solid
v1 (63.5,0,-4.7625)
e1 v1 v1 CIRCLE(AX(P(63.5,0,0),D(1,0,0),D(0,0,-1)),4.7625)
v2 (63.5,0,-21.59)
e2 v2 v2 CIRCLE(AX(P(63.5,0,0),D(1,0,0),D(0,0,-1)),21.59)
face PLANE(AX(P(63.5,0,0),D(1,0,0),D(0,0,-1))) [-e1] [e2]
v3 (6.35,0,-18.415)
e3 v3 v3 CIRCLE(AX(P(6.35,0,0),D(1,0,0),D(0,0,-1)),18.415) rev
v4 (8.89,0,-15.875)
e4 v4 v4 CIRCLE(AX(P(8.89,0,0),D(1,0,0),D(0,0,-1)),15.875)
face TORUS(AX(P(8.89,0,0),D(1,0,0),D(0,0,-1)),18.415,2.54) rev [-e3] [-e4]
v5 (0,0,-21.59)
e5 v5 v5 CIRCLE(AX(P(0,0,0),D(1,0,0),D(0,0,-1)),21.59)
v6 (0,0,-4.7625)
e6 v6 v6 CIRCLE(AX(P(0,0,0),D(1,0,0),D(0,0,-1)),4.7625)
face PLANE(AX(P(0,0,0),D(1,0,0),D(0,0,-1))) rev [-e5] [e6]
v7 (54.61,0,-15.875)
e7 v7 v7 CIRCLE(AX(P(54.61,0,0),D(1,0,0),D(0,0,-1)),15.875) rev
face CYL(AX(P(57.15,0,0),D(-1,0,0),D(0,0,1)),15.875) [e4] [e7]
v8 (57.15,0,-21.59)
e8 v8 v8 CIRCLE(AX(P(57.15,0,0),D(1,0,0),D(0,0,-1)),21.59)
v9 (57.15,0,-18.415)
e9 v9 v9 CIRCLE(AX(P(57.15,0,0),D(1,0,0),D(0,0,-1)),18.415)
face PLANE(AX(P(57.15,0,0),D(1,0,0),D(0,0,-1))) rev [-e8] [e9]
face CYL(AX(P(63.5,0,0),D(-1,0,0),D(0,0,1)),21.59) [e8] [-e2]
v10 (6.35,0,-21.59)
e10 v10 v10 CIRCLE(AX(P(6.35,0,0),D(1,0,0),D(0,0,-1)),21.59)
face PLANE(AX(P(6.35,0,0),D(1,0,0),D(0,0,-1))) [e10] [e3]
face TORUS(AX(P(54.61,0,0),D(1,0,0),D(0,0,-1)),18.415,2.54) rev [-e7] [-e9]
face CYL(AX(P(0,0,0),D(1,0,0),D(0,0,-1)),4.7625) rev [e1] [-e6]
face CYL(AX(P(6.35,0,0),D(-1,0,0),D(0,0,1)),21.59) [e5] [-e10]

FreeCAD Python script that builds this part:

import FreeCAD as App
import Part
import Sketcher

V = App.Vector
Q = App.Units.Quantity


def edges_at(feature, points):
    """Names of the edges that pass closest to the given points."""
    edges = feature.Shape.Edges
    near = lambda p: min(range(len(edges)), key=lambda i: edges[i].distToShape(Part.Vertex(*p))[0])
    return sorted({f"Edge{near(p) + 1}" for p in points})

doc = App.newDocument("Part")
body = doc.addObject("PartDesign::Body", "Body")

# Sketch on YZ plane
sketch1 = body.newObject("Sketcher::SketchObject", "Sketch")
sketch1.AttachmentSupport = (doc.getObject("YZ_Plane"), [""])
sketch1.MapMode = "FlatFace"
sketch1.addGeometry(Part.Circle(V(0, 0, 0), V(0, 0, 1), 22), False)
sketch1.addConstraint([
    Sketcher.Constraint("Coincident", 0, 3, -1, 1),
    Sketcher.Constraint("Diameter", 0, Q("1.7 in")),
])
pad1 = body.newObject("PartDesign::Pad", "Pad")
pad1.Profile = sketch1
pad1.Length = Q("0.25 in")

# Sketch on YZ plane
sketch2 = body.newObject("Sketcher::SketchObject", "Sketch001")
sketch2.AttachmentSupport = (doc.getObject("YZ_Plane"), [""])
sketch2.MapMode = "FlatFace"
sketch2.AttachmentOffset = App.Placement(V(0, 0, 0.25 * 25.4), App.Rotation())
sketch2.addGeometry(Part.Circle(V(0, 0, 0), V(0, 0, 1), 16), False)
sketch2.addConstraint([
    Sketcher.Constraint("Coincident", 0, 3, -1, 1),
    Sketcher.Constraint("Diameter", 0, Q("1.25 in")),
])
pad2 = body.newObject("PartDesign::Pad", "Pad001")
pad2.Profile = sketch2
pad2.Length = Q("2 in")
doc.recompute()

fillet = body.newObject("PartDesign::Fillet", "Fillet")
fillet.Base = (pad2, edges_at(pad2, [(6.35, 0, 15.875)]))
fillet.Radius = Q("0.1 in")

# Sketch on YZ plane
sketch3 = body.newObject("Sketcher::SketchObject", "Sketch002")
sketch3.AttachmentSupport = (doc.getObject("YZ_Plane"), [""])
sketch3.MapMode = "FlatFace"
sketch3.AttachmentOffset = App.Placement(V(0, 0, 2.25 * 25.4), App.Rotation())
sketch3.addGeometry(Part.Circle(V(0, 0, 0), V(0, 0, 1), 22), False)
sketch3.addConstraint([
    Sketcher.Constraint("Coincident", 0, 3, -1, 1),
    Sketcher.Constraint("Diameter", 0, Q("1.7 in")),
])
pad3 = body.newObject("PartDesign::Pad", "Pad002")
pad3.Profile = sketch3
pad3.Length = Q("0.25 in")
doc.recompute()

fillet2 = body.newObject("PartDesign::Fillet", "Fillet001")
fillet2.Base = (pad3, edges_at(pad3, [(57.15, 0, 15.875)]))
fillet2.Radius = Q("0.1 in")

# Sketch on YZ plane
sketch4 = body.newObject("Sketcher::SketchObject", "Sketch003")
sketch4.AttachmentSupport = (doc.getObject("YZ_Plane"), [""])
sketch4.MapMode = "FlatFace"
sketch4.AttachmentOffset = App.Placement(V(0, 0, 2.5 * 25.4), App.Rotation())
sketch4.addGeometry(Part.Circle(V(0, 0, 0), V(0, 0, 1), 4.8), False)
sketch4.addConstraint([
    Sketcher.Constraint("Coincident", 0, 3, -1, 1),
    Sketcher.Constraint("Diameter", 0, Q("0.375 in")),
])
pocket1 = body.newObject("PartDesign::Pocket", "Pocket")
pocket1.Profile = sketch4
pocket1.Type = "ThroughAll"

doc.recompute()
